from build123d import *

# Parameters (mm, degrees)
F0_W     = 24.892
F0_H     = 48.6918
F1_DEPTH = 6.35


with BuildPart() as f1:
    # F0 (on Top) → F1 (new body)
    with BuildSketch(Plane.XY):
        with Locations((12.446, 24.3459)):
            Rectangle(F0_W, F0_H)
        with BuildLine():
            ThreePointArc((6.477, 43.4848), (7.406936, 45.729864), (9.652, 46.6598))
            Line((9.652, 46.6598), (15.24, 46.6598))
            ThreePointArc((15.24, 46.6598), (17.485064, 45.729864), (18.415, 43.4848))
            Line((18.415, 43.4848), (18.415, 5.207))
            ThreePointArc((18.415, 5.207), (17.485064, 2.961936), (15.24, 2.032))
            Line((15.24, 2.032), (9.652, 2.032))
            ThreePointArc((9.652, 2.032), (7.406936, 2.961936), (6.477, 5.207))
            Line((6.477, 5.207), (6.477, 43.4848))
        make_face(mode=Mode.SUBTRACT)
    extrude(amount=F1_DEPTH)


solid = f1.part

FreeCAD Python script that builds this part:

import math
import FreeCAD as App
import Part
import Sketcher
from FreeCAD import Vector
Q = App.Units.Quantity


def add_polygon(sketch, points):
    """Adds a closed chain of lines whose ends are joined by coincident constraints."""
    first, n = sketch.GeometryCount, len(points)
    for a, b in zip(points, points[1:] + points[:1]):
        sketch.addGeometry(Part.LineSegment(App.Vector(*a, 0), App.Vector(*b, 0)), False)
    for i in range(n):
        sketch.addConstraint(Sketcher.Constraint("Coincident", first + i, 2, first + (i + 1) % n, 1))

doc = App.newDocument("Part")
body = doc.addObject("PartDesign::Body", "Body")

# Sketch on XY plane
sketch1 = body.newObject("Sketcher::SketchObject", "Sketch")
sketch1.AttachmentSupport = (doc.getObject("XY_Plane"), [""])
sketch1.MapMode = "FlatFace"
add_polygon(sketch1, [(0, 48.6918), (0, 0), (24.892, 0), (24.892, 48.6918)])  # lines 0-3
sketch1.addGeometry(Part.LineSegment(Vector(6.477, 5.207, 0), Vector(6.477, 43.4848, 0)), False)  # 4
sketch1.addGeometry(Part.ArcOfCircle(Part.Circle(Vector(9.652, 43.4848, 0), Vector(0, 0, 1), 3.175), math.radians(90.000002), math.radians(179.999998)), False)  # 5
sketch1.addGeometry(Part.LineSegment(Vector(9.652, 46.6598, 0), Vector(15.24, 46.6598, 0)), False)  # 6
sketch1.addGeometry(Part.ArcOfCircle(Part.Circle(Vector(15.24, 43.4848, 0), Vector(0, 0, 1), 3.175), math.radians(0.000002), math.radians(89.999998)), False)  # 7
sketch1.addGeometry(Part.LineSegment(Vector(18.415, 43.4848, 0), Vector(18.415, 5.207, 0)), False)  # 8
sketch1.addGeometry(Part.ArcOfCircle(Part.Circle(Vector(15.24, 5.207, 0), Vector(0, 0, 1), 3.175), math.radians(-89.999998), math.radians(-0.000002)), False)  # 9
sketch1.addGeometry(Part.LineSegment(Vector(15.24, 2.032, 0), Vector(9.652, 2.032, 0)), False)  # 10
sketch1.addGeometry(Part.ArcOfCircle(Part.Circle(Vector(9.652, 5.207, 0), Vector(0, 0, 1), 3.175), math.radians(-179.999998), math.radians(-90.000002)), False)  # 11
sketch1.addConstraint([
    Sketcher.Constraint("Tangent", 4, 2, 5, 2),
    Sketcher.Constraint("Tangent", 5, 1, 6, 1),
    Sketcher.Constraint("Tangent", 6, 2, 7, 2),
    Sketcher.Constraint("Tangent", 7, 1, 8, 1),
    Sketcher.Constraint("Tangent", 8, 2, 9, 2),
    Sketcher.Constraint("Tangent", 9, 1, 10, 1),
    Sketcher.Constraint("Tangent", 10, 2, 11, 2),
    Sketcher.Constraint("Tangent", 11, 1, 4, 1),
    Sketcher.Constraint("Vertical", 0),
    Sketcher.Constraint("Horizontal", 1),
    Sketcher.Constraint("Vertical", 2),
    Sketcher.Constraint("Horizontal", 3),
    Sketcher.Constraint("Vertical", 4),
    Sketcher.Constraint("Horizontal", 6),
    Sketcher.Constraint("Vertical", 8),
    Sketcher.Constraint("Horizontal", 10),
    Sketcher.Constraint("Coincident", 0, 2, -1, 1),
    Sketcher.Constraint("Equal", 5, 7),
    Sketcher.Constraint("Equal", 7, 9),
    Sketcher.Constraint("Equal", 9, 11),
    Sketcher.Constraint("Radius", 5, Q("0.125 in")),
    Sketcher.Constraint("DistanceX", 1, 1, 1, 2, Q("0.98 in")),
    Sketcher.Constraint("DistanceX", 6, 1, 6, 2, Q("0.22 in")),
    Sketcher.Constraint("DistanceX", -1, 1, 7, 3, Q("0.6 in")),
    Sketcher.Constraint("DistanceY", 0, 2, 0, 1, Q("1.917 in")),
    Sketcher.Constraint("DistanceY", 4, 1, 4, 2, Q("1.507 in")),
    Sketcher.Constraint("DistanceY", -1, 1, 9, 1, Q("0.08 in")),
])
pad1 = body.newObject("PartDesign::Pad", "Pad")
pad1.Profile = sketch1
pad1.Length = Q("0.25 in")

doc.recompute()
